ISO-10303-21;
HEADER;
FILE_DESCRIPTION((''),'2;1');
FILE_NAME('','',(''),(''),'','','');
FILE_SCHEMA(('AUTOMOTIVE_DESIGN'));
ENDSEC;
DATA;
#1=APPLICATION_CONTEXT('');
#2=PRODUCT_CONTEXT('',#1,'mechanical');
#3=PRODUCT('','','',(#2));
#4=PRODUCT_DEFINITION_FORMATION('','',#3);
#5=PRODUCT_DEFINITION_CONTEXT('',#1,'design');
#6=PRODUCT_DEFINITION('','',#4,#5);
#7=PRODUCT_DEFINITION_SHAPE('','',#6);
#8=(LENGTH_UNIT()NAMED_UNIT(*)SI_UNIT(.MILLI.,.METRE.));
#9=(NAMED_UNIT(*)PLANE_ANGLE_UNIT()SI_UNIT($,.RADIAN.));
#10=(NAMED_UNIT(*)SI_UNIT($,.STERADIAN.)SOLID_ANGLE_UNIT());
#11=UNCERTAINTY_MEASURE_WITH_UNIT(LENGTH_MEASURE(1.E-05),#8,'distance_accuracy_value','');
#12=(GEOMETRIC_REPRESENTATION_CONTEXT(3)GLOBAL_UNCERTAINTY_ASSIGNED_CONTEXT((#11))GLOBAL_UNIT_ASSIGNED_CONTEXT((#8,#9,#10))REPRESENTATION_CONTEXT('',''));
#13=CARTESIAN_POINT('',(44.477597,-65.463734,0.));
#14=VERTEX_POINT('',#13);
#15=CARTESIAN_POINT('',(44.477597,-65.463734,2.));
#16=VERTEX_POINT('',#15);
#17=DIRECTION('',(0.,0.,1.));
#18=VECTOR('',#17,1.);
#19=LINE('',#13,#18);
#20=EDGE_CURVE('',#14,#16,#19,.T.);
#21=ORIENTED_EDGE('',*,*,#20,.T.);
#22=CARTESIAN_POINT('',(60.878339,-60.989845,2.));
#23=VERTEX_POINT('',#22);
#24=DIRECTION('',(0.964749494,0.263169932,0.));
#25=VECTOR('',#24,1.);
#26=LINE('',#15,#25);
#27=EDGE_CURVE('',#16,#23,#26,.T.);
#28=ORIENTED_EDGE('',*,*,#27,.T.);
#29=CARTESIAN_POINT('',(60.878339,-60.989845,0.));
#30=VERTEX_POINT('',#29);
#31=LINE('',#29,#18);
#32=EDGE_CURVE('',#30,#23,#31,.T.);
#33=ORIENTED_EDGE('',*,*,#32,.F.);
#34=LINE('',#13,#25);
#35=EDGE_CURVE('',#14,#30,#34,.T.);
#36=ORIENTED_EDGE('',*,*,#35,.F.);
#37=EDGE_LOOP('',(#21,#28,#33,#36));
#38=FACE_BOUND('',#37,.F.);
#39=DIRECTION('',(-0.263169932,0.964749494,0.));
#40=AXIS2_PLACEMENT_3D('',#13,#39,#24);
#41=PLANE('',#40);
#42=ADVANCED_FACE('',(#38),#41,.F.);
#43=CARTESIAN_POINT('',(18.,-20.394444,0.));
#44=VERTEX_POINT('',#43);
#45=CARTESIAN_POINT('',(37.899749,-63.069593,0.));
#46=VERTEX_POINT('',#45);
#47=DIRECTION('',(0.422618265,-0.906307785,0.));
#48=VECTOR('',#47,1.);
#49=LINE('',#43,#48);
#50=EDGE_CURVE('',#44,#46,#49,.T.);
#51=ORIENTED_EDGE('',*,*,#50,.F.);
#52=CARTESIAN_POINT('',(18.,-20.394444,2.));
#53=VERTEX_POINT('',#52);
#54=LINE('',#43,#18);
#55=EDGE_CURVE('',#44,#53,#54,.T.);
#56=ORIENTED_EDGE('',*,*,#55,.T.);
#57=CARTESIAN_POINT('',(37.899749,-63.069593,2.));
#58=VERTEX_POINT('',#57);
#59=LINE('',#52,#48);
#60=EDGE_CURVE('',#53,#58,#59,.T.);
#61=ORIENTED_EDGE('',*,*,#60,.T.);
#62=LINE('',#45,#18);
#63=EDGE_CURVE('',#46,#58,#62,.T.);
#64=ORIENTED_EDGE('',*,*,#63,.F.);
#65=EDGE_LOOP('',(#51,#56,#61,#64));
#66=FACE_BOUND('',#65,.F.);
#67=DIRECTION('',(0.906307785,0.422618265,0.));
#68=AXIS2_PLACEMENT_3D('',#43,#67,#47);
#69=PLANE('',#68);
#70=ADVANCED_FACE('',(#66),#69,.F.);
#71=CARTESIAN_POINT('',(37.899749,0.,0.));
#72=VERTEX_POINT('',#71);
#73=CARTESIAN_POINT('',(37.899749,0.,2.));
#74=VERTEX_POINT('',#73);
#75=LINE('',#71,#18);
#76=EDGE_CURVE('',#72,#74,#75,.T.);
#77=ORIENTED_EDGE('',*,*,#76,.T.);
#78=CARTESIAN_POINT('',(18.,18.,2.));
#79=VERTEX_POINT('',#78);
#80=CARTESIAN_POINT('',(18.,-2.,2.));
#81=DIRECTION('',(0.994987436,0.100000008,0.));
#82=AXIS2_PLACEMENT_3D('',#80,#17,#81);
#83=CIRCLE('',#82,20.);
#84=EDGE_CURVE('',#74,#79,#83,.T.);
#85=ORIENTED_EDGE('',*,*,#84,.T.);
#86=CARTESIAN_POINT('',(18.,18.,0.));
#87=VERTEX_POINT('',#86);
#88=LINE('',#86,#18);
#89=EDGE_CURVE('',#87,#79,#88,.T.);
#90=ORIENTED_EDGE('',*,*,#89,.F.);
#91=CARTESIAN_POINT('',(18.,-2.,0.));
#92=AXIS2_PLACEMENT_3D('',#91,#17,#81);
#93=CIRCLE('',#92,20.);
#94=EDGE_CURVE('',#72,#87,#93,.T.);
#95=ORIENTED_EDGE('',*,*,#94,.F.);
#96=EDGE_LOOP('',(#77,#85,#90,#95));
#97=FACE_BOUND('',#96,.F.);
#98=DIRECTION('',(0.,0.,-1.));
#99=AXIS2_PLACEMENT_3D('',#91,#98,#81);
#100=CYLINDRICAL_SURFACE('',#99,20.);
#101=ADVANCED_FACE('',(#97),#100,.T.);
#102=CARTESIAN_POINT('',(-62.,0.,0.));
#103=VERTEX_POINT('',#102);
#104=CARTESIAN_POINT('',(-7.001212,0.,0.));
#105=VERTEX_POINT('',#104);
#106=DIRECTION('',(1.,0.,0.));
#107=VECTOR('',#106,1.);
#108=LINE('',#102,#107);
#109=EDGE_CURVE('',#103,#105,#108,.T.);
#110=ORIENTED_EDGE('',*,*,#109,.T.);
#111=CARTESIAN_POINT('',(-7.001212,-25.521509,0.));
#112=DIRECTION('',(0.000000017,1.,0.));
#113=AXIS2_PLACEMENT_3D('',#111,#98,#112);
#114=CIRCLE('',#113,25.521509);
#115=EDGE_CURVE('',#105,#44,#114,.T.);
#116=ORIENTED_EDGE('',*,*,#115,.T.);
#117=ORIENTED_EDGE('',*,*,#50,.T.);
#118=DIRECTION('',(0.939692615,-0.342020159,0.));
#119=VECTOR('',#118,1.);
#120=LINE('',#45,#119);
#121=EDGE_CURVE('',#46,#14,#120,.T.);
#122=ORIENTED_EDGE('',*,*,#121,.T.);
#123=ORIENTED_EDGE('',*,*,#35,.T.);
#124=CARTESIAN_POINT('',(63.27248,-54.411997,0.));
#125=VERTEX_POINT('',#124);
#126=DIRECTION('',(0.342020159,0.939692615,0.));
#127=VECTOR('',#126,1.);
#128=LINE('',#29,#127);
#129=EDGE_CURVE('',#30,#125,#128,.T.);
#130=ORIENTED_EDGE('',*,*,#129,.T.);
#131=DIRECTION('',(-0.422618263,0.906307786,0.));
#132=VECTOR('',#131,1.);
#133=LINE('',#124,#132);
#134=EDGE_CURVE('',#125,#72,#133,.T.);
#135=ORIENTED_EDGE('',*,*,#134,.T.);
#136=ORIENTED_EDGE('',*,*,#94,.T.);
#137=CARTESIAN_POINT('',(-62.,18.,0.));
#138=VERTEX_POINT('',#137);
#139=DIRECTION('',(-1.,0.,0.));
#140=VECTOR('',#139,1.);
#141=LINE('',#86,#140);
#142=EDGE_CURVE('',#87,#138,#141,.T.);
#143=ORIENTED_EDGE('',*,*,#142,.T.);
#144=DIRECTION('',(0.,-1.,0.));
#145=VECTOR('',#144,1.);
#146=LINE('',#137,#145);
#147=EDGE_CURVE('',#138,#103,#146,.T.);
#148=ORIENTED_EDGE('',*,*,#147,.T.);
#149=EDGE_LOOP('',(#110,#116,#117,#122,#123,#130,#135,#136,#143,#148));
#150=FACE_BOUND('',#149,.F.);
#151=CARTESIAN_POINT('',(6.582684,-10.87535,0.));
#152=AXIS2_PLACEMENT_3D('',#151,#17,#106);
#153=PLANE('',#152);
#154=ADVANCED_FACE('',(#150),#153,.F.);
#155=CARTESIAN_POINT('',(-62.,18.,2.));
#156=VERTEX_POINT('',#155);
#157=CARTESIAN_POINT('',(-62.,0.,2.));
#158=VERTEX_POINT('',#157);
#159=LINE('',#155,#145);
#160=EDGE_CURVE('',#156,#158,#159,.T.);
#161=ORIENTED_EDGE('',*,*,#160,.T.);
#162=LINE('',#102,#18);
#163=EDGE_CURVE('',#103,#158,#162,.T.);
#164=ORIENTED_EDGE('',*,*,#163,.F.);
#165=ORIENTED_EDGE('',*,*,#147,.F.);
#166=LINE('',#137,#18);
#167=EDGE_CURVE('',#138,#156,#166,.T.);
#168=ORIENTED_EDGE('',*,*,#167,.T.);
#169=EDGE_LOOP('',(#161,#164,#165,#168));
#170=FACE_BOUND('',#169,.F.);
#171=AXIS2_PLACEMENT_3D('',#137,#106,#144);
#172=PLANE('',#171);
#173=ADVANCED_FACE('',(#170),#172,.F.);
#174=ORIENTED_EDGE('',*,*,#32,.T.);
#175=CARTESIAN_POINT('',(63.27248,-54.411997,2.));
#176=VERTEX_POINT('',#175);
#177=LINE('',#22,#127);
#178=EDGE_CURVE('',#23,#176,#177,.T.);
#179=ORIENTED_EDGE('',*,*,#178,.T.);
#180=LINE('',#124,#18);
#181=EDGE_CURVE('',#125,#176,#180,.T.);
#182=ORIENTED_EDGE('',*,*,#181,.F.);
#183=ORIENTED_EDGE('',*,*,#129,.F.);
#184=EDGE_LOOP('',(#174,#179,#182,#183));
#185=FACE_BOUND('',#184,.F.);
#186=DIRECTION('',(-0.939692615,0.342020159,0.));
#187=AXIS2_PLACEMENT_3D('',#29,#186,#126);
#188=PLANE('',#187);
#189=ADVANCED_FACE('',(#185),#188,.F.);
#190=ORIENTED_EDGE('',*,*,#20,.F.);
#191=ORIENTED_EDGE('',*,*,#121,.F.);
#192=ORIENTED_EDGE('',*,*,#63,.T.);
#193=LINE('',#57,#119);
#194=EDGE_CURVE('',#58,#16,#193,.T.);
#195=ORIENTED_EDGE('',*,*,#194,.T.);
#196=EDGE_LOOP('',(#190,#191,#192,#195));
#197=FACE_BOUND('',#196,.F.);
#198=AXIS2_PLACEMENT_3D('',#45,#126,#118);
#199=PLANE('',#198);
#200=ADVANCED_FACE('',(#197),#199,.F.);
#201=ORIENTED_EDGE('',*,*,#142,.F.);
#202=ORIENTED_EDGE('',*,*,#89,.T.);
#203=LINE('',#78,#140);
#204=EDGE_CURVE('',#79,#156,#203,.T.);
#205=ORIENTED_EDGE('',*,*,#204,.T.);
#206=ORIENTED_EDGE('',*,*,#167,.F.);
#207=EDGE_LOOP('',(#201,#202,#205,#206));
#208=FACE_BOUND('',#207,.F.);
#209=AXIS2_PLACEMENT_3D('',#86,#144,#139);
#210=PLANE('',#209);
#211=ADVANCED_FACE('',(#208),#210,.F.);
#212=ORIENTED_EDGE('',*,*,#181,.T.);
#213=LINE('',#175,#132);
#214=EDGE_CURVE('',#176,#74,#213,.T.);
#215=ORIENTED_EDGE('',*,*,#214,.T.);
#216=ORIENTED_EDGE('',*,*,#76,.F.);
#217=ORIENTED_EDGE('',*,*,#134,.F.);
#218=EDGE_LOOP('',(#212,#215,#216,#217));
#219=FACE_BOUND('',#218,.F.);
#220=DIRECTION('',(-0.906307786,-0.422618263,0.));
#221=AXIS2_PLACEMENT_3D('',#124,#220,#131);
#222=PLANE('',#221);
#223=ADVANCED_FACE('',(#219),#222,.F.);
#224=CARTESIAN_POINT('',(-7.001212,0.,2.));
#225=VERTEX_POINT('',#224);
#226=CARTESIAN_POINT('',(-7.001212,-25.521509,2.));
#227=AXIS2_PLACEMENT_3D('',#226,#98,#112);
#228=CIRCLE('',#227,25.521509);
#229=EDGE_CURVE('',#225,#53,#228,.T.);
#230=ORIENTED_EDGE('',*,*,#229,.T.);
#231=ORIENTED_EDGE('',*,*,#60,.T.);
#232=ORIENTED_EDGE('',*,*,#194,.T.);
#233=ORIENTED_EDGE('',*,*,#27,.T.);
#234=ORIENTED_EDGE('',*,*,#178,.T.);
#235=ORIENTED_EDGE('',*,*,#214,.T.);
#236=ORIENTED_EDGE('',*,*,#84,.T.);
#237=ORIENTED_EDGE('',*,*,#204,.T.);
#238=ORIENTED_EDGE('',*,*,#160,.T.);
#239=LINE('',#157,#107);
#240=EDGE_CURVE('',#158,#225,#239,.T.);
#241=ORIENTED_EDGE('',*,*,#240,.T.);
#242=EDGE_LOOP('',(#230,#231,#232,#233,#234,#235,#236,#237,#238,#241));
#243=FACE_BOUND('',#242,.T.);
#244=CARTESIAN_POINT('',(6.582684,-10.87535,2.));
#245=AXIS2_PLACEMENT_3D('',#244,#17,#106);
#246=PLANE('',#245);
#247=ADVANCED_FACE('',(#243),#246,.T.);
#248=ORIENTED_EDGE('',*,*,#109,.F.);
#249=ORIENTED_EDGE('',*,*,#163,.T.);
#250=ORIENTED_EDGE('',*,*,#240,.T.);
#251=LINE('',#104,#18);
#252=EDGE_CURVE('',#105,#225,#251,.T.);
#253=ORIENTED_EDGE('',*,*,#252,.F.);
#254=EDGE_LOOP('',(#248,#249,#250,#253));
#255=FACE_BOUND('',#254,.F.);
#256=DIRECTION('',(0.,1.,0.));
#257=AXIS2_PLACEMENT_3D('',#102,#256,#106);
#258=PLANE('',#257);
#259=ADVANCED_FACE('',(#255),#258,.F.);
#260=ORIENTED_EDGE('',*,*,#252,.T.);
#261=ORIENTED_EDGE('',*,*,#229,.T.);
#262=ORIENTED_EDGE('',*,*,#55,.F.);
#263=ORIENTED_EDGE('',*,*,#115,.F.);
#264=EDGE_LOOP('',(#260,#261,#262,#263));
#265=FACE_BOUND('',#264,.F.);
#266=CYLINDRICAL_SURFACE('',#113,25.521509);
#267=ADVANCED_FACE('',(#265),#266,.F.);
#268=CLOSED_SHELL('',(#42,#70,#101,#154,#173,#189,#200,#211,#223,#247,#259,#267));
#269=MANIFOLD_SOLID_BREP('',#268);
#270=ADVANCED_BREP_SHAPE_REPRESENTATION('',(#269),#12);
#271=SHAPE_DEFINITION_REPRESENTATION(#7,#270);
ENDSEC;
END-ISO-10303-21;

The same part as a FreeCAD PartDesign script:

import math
import FreeCAD as App
import Part
import Sketcher
Q = App.Units.Quantity

doc = App.newDocument("Part")
body = doc.addObject("PartDesign::Body", "Body")

sketch1 = body.newObject("Sketcher::SketchObject", "Sketch")
sketch1.AttachmentSupport = (doc.getObject("XY_Plane"), [""])
sketch1.MapMode = "FlatFace"
sketch1.addGeometry([
    Part.LineSegment(App.Vector(18, 18, 0), App.Vector(-62, 18, 0)),
    Part.LineSegment(App.Vector(-62, 18, 0), App.Vector(-62, 0, 0)),
    Part.LineSegment(App.Vector(-62, 0, 0), App.Vector(-7, 0, 0)),
    Part.ArcOfCircle(Part.Circle(App.Vector(-7, -26, 0), App.Vector(0, 0, 1), 26), math.radians(12), math.radians(90)),
    Part.LineSegment(App.Vector(18, -20, 0), App.Vector(38, -63, 0)),
    Part.LineSegment(App.Vector(38, -63, 0), App.Vector(44, -65, 0)),
    Part.LineSegment(App.Vector(44, -65, 0), App.Vector(61, -61, 0)),
    Part.LineSegment(App.Vector(61, -61, 0), App.Vector(63, -54, 0)),
    Part.LineSegment(App.Vector(63, -54, 0), App.Vector(38, 0, 0)),
    Part.ArcOfCircle(Part.Circle(App.Vector(18, -2, 0), App.Vector(0, 0, 1), 20), math.radians(6), math.radians(90)),
], False)
sketch1.addConstraint([
    Sketcher.Constraint("Coincident", 0, 2, 1, 1),
    Sketcher.Constraint("Coincident", 1, 2, 2, 1),
    Sketcher.Constraint("Tangent", 2, 2, 3, 2),
    Sketcher.Constraint("Coincident", 3, 1, 4, 1),
    Sketcher.Constraint("Coincident", 4, 2, 5, 1),
    Sketcher.Constraint("Coincident", 5, 2, 6, 1),
    Sketcher.Constraint("Coincident", 6, 2, 7, 1),
    Sketcher.Constraint("Coincident", 7, 2, 8, 1),
    Sketcher.Constraint("Coincident", 8, 2, 9, 1),
    Sketcher.Constraint("Tangent", 9, 2, 0, 1),
    Sketcher.Constraint("Horizontal", 0),
    Sketcher.Constraint("Vertical", 1),
    Sketcher.Constraint("Horizontal", 2),
    Sketcher.Constraint("PointOnObject", 1, 2, -1),
    Sketcher.Constraint("PointOnObject", 8, 2, -1),
    Sketcher.Constraint("Perpendicular", 5, 7),
    Sketcher.Constraint("Parallel", 4, 8),
    Sketcher.Constraint("Vertical", 9, 3, 3, 1),
    Sketcher.Constraint("Vertical", 4, 2, 8, 2),
    Sketcher.Constraint("Equal", 5, 7),
    Sketcher.Constraint("Radius", 9, 20.0),
    Sketcher.Constraint("DistanceX", 0, 2, 0, 1, 80.0),
    Sketcher.Constraint("DistanceY", 1, 2, 1, 1, 18.0),
    Sketcher.Constraint("Angle", 4, Q("-65 deg")),
    Sketcher.Constraint("Angle", 5, Q("-20.000001 deg")),
    Sketcher.Constraint("Distance", 5, 7.0),
    Sketcher.Constraint("Distance", 6, 17.000001),
    Sketcher.Constraint("DistanceX", -1, 1, 9, 3, 18.0),
    Sketcher.Constraint("Radius", 3, 25.521509),
    Sketcher.Constraint("DistanceY", 6, 2, 3, 1, 40.595401),
])
pad1 = body.newObject("PartDesign::Pad", "Pad")
pad1.Profile = sketch1
pad1.Length = 2

doc.recompute()
